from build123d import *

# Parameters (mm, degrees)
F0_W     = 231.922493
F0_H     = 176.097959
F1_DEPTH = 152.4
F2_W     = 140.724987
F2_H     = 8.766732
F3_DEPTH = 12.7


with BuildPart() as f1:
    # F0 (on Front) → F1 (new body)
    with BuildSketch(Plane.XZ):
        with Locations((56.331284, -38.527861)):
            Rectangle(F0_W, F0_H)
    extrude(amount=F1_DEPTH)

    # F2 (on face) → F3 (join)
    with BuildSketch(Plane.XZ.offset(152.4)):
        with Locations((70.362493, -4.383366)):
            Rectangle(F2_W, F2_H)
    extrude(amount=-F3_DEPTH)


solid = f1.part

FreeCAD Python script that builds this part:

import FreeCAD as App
import Part
import Sketcher
Q = App.Units.Quantity


def add_polygon(sketch, points):
    """Adds a closed chain of lines whose ends are joined by coincident constraints."""
    first, n = sketch.GeometryCount, len(points)
    for a, b in zip(points, points[1:] + points[:1]):
        sketch.addGeometry(Part.LineSegment(App.Vector(*a, 0), App.Vector(*b, 0)), False)
    for i in range(n):
        sketch.addConstraint(Sketcher.Constraint("Coincident", first + i, 2, first + (i + 1) % n, 1))

doc = App.newDocument("Part")
body = doc.addObject("PartDesign::Body", "Body")

sketch1 = doc.addObject("Sketcher::SketchObject", "Sketch")
body.addObject(sketch1)
sketch1.AttachmentSupport = (doc.XZ_Plane, [""])
sketch1.MapMode = "FlatFace"
add_polygon(sketch1, [(-60, 50), (-60, -127), (172, -127), (172, 50)])
sketch1.addConstraint([
    Sketcher.Constraint("Vertical", 0),
    Sketcher.Constraint("Horizontal", 1),
    Sketcher.Constraint("Vertical", 2),
    Sketcher.Constraint("Horizontal", 3),
    Sketcher.Constraint("DistanceY", 0, 2, 0, 1, 176.097959),
    Sketcher.Constraint("DistanceX", 1, 1, 1, 2, 231.922493),
    Sketcher.Constraint("DistanceY", 0, 2, -1, 1, 126.576841),
    Sketcher.Constraint("DistanceX", -1, 1, 1, 2, 172.29253),
])
pad1 = doc.addObject("PartDesign::Pad", "Pad")
body.addObject(pad1)
pad1.Profile = sketch1
pad1.Length = Q("6 in")

sketch2 = doc.addObject("Sketcher::SketchObject", "Sketch001")
body.addObject(sketch2)
sketch2.AttachmentSupport = (doc.XZ_Plane, [""])
sketch2.MapMode = "FlatFace"
sketch2.AttachmentOffset = App.Placement(App.Vector(0, 0, 6 * 25.4), App.Rotation())
add_polygon(sketch2, [(0, 0), (0, -9), (141, -9), (141, 0)])
sketch2.addConstraint([
    Sketcher.Constraint("Vertical", 0),
    Sketcher.Constraint("Horizontal", 1),
    Sketcher.Constraint("Vertical", 2),
    Sketcher.Constraint("Horizontal", 3),
    Sketcher.Constraint("Coincident", 3, 2, -1, 1),
    Sketcher.Constraint("DistanceY", 0, 2, 0, 1, 8.766732),
    Sketcher.Constraint("DistanceX", 1, 1, 1, 2, 140.724987),
])
pad2 = doc.addObject("PartDesign::Pad", "Pad001")
body.addObject(pad2)
pad2.Profile = sketch2
pad2.Length = Q("0.5 in")
pad2.Reversed = True

doc.recompute()
